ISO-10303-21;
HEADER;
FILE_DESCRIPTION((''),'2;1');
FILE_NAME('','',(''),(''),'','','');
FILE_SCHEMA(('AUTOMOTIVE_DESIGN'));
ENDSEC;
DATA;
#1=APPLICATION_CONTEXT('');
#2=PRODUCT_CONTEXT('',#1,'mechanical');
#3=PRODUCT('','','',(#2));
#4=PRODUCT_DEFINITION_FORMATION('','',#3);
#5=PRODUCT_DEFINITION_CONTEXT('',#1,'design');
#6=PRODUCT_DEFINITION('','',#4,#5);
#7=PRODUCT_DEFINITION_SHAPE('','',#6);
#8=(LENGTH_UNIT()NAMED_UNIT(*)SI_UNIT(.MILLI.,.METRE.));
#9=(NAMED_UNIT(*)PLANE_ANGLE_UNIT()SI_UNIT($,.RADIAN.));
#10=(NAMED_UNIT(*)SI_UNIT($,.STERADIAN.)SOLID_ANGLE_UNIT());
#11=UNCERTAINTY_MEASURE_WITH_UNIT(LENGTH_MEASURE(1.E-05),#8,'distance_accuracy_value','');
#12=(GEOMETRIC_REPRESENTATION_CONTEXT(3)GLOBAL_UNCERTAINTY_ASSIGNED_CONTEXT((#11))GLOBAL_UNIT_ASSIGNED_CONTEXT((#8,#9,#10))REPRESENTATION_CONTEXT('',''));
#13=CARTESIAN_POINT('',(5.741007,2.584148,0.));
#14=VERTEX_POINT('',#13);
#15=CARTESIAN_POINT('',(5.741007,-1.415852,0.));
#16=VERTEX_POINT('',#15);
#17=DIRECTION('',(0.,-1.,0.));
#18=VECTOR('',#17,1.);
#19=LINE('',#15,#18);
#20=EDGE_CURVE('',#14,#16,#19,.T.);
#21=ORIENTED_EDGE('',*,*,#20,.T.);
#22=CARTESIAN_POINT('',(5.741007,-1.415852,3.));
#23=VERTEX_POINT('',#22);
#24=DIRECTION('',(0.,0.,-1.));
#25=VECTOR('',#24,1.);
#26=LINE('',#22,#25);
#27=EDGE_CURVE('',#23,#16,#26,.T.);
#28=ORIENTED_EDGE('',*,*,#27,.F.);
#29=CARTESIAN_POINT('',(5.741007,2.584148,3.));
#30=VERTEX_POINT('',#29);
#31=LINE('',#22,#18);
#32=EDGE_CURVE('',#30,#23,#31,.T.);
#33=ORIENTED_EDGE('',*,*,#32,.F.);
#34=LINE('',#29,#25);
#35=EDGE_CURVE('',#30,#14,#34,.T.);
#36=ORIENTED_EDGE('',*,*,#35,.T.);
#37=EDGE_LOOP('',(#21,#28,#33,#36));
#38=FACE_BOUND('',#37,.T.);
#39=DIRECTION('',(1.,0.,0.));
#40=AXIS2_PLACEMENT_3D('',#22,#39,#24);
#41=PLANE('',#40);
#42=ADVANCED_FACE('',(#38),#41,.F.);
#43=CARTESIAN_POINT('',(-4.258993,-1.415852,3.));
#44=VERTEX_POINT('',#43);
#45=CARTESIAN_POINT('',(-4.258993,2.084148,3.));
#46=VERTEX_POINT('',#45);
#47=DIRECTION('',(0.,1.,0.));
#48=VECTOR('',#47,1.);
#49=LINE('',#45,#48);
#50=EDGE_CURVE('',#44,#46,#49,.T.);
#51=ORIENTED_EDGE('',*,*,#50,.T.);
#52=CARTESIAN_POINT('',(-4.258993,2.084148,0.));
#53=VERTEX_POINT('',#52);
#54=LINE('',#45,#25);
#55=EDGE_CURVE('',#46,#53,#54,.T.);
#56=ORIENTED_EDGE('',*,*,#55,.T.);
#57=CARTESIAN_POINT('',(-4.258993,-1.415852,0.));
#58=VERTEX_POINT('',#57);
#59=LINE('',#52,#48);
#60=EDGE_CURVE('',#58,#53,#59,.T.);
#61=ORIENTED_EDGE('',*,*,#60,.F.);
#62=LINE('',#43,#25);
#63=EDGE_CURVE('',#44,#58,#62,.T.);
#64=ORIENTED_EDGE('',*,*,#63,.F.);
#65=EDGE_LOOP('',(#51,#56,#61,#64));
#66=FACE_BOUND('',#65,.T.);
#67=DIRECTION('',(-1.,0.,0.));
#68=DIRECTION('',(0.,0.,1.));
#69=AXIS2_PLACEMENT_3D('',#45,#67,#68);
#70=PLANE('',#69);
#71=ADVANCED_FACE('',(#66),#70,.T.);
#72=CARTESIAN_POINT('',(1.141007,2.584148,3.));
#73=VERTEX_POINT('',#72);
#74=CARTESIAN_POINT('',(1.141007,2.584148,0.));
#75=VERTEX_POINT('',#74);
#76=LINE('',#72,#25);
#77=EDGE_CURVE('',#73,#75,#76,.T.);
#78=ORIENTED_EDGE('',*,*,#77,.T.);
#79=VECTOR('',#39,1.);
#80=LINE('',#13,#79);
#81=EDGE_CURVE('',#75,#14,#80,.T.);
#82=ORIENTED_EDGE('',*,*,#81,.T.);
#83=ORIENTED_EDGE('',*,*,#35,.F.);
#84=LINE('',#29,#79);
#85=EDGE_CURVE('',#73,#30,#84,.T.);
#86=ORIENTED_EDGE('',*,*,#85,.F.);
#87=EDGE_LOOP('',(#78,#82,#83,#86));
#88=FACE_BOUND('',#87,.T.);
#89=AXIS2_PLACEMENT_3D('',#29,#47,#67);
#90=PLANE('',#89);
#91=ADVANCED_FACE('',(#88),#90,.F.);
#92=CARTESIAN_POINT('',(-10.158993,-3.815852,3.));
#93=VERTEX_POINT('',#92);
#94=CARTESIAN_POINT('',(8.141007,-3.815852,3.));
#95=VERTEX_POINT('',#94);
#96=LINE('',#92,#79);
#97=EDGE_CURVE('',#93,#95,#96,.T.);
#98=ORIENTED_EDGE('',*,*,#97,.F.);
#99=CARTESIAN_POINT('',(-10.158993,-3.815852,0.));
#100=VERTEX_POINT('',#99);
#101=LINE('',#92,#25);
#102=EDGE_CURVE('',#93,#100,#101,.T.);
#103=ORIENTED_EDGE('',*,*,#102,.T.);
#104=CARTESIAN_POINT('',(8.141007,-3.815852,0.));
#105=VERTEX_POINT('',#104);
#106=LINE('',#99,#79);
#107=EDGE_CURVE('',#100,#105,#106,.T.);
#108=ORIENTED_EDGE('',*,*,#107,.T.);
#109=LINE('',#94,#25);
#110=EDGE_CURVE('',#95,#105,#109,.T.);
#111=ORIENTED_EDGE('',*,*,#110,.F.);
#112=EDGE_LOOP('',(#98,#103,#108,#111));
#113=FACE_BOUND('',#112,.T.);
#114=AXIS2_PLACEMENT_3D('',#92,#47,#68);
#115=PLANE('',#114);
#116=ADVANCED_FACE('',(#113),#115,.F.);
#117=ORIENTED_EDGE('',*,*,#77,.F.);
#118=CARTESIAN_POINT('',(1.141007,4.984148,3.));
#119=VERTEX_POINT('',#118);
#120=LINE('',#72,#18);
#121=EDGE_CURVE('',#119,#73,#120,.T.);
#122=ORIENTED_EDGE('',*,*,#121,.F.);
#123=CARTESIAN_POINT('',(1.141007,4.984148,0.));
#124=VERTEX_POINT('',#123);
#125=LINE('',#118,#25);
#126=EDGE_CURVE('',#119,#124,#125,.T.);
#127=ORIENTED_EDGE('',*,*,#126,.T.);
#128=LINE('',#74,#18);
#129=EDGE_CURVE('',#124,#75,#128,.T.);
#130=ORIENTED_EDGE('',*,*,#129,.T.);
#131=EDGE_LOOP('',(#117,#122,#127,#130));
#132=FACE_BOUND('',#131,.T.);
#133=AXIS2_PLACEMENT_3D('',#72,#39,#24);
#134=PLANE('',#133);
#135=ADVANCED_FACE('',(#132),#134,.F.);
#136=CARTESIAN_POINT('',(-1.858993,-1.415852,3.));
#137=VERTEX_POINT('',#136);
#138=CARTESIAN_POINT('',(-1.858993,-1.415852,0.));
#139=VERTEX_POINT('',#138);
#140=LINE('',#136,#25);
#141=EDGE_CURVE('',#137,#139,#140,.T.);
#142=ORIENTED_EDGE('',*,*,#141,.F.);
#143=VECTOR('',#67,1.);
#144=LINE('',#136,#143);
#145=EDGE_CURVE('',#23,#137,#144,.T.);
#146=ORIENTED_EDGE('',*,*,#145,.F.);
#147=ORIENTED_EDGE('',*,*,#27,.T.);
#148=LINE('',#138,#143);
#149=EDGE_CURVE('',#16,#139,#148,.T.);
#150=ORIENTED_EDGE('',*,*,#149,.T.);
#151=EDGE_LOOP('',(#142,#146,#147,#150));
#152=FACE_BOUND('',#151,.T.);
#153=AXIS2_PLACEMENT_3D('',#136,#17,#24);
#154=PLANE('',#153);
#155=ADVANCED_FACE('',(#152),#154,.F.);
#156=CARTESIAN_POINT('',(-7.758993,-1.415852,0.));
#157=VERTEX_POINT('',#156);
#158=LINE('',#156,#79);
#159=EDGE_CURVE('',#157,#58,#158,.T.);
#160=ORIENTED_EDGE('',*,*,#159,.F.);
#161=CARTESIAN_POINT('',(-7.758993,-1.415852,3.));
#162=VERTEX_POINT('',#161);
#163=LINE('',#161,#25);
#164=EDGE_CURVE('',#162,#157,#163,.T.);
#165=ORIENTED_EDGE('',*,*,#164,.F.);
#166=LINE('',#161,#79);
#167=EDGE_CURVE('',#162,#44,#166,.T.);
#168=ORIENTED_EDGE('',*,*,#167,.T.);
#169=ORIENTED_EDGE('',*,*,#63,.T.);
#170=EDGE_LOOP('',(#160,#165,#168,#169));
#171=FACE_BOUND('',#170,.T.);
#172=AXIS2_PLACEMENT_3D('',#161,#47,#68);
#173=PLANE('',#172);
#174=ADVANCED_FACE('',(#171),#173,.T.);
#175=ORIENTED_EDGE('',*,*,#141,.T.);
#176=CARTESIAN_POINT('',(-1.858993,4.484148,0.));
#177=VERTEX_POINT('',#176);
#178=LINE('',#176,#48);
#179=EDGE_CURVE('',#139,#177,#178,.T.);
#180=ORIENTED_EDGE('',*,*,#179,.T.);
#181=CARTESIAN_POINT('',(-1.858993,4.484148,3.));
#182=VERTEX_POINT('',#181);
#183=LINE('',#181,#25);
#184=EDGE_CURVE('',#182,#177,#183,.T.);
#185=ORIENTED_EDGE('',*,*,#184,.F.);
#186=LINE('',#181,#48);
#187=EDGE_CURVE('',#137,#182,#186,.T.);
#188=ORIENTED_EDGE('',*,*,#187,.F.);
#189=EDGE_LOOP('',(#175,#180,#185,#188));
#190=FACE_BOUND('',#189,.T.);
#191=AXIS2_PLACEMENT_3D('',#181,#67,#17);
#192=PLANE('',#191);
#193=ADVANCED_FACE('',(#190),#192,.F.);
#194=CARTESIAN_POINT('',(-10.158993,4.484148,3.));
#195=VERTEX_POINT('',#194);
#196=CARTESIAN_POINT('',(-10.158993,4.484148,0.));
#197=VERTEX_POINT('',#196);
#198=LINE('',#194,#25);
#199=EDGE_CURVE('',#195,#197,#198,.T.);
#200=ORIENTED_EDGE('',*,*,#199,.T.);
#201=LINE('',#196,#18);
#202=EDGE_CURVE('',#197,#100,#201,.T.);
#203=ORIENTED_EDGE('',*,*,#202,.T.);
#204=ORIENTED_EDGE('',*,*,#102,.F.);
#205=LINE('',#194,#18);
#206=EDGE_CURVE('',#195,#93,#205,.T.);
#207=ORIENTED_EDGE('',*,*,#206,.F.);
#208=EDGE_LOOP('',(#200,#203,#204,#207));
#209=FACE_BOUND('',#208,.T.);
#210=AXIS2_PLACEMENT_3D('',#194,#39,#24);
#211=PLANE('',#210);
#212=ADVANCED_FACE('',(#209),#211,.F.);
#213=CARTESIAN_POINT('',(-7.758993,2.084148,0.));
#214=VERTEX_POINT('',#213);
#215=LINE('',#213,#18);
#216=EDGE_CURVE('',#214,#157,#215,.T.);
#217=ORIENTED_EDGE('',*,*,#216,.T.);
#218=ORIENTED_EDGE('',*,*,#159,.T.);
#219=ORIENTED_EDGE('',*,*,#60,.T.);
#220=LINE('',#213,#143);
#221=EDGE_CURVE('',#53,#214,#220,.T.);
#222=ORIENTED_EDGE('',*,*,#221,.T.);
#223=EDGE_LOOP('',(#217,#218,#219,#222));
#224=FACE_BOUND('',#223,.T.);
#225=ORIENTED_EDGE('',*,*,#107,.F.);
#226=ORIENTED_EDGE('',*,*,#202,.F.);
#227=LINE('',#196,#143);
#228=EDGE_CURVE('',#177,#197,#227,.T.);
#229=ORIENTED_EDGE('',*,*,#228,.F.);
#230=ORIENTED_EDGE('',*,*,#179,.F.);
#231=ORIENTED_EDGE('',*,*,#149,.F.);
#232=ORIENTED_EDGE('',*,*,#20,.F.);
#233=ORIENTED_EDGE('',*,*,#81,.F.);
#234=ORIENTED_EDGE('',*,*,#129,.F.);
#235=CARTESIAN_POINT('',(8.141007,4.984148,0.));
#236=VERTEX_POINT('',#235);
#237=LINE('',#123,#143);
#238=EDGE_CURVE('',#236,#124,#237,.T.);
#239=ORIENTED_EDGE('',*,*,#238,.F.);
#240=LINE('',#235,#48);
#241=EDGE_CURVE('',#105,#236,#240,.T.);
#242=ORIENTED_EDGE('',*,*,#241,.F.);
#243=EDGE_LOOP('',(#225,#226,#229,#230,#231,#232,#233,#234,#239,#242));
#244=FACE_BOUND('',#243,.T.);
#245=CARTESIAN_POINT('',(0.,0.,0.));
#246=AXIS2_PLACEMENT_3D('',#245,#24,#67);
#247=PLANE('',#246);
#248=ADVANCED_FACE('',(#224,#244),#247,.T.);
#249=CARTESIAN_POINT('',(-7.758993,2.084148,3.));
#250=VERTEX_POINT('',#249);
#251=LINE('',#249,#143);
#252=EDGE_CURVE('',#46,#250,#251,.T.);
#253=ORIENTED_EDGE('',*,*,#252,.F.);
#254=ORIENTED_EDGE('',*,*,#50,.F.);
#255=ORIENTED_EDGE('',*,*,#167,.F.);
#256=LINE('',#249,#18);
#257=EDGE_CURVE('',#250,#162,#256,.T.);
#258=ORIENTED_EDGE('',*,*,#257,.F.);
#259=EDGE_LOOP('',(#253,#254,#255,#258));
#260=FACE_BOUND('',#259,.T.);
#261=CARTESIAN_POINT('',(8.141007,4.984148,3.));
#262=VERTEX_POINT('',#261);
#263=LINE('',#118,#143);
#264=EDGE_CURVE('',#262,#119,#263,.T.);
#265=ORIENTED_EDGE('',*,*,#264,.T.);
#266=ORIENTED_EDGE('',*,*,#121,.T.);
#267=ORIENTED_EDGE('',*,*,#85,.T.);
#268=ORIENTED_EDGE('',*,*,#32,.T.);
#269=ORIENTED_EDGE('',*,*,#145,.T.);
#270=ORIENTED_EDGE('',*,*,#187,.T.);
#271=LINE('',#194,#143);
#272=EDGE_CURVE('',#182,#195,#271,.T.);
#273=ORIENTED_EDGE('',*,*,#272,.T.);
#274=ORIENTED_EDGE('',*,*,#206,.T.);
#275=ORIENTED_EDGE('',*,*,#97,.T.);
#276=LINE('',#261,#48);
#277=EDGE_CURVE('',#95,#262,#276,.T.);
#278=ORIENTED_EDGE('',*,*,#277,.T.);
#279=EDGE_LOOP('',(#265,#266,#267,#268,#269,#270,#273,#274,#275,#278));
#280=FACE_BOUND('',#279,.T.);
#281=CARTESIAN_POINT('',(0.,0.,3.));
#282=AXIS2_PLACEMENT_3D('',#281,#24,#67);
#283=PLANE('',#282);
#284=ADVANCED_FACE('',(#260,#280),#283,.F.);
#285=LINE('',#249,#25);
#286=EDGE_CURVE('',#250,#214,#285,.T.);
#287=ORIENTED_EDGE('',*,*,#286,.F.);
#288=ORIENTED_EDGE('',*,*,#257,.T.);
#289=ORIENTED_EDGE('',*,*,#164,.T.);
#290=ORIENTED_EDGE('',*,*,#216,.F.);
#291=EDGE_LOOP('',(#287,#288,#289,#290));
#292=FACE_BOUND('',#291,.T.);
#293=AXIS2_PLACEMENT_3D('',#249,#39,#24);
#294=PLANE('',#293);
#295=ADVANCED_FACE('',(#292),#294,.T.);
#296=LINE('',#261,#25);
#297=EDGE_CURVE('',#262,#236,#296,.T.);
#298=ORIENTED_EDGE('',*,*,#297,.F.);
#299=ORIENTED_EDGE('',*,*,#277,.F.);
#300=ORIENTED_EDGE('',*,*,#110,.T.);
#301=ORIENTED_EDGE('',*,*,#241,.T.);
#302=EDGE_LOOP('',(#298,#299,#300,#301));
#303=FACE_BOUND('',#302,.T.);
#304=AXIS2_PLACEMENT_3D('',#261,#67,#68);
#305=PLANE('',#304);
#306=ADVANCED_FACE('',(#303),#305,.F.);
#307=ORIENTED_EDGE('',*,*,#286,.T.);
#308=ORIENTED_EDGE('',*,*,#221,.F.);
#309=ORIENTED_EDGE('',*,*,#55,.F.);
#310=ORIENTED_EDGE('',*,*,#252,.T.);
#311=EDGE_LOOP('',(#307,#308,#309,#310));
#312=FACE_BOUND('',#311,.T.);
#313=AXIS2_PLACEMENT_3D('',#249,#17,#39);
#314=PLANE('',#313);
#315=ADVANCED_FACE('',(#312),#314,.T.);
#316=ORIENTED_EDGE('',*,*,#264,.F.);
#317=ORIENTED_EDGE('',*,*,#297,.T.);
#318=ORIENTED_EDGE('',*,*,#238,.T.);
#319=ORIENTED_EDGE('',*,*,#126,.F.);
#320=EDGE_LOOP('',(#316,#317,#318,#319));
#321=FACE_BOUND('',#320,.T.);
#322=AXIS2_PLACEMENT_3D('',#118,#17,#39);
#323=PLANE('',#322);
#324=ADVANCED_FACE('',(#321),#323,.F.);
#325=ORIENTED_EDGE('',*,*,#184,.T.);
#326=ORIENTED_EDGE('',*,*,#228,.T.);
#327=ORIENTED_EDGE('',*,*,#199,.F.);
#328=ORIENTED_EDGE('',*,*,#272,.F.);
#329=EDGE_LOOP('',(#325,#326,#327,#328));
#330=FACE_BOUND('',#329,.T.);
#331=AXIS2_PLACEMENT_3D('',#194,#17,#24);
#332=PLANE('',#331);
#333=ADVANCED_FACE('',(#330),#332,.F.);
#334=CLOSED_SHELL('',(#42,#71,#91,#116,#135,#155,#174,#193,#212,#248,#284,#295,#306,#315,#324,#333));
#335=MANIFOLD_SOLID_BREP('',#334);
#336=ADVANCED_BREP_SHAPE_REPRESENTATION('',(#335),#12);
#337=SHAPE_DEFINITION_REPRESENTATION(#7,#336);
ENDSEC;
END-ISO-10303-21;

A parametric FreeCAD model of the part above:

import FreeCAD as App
import Part
import Sketcher
from FreeCAD import Vector
Q = App.Units.Quantity


def add_polygon(sketch, points):
    """Adds a closed chain of lines whose ends are joined by coincident constraints."""
    first, n = sketch.GeometryCount, len(points)
    for a, b in zip(points, points[1:] + points[:1]):
        sketch.addGeometry(Part.LineSegment(App.Vector(*a, 0), App.Vector(*b, 0)), False)
    for i in range(n):
        sketch.addConstraint(Sketcher.Constraint("Coincident", first + i, 2, first + (i + 1) % n, 1))

doc = App.newDocument("Part")
body = doc.addObject("PartDesign::Body", "Body")

# Sketch on XY plane
sketch1 = body.newObject("Sketcher::SketchObject", "Sketch")
sketch1.AttachmentSupport = (doc.getObject("XY_Plane"), [""])
sketch1.MapMode = "FlatFace"
add_polygon(sketch1, [(-1.9, -1.4), (-1.9, 4.5), (-10.2, 4.5), (-10.2, -3.8), (8.1, -3.8), (8.1, 5), (1.1, 5), (1.1, 2.6), (5.7, 2.6), (5.7, -1.4)])  # lines 0-9
add_polygon(sketch1, [(-7.8, -1.4), (-7.8, 2.1), (-4.3, 2.1), (-4.3, -1.4)])  # lines 10-13
sketch1.addConstraint(Sketcher.Constraint("Vertical", 0))
sketch1.addConstraint(Sketcher.Constraint("Horizontal", 1))
sketch1.addConstraint(Sketcher.Constraint("Vertical", 2))
sketch1.addConstraint(Sketcher.Constraint("Horizontal", 3))
sketch1.addConstraint(Sketcher.Constraint("Vertical", 4))
sketch1.addConstraint(Sketcher.Constraint("Horizontal", 5))
sketch1.addConstraint(Sketcher.Constraint("Vertical", 6))
sketch1.addConstraint(Sketcher.Constraint("Horizontal", 7))
sketch1.addConstraint(Sketcher.Constraint("Vertical", 8))
sketch1.addConstraint(Sketcher.Constraint("Horizontal", 9))
sketch1.addConstraint(Sketcher.Constraint("Vertical", 10))
sketch1.addConstraint(Sketcher.Constraint("Horizontal", 11))
sketch1.addConstraint(Sketcher.Constraint("Vertical", 12))
sketch1.addConstraint(Sketcher.Constraint("Horizontal", 13))
sketch1.addConstraint(Sketcher.Constraint("Horizontal", 9, 2, 12, 2))
sketch1.addConstraint(Sketcher.Constraint("Equal", 1, 2))
sketch1.addConstraint(Sketcher.Constraint("Equal", 13, 10))
sketch1.addConstraint(Sketcher.Constraint("DistanceX", 5, 2, 5, 1, Q("7 mm")))
sketch1.addConstraint(Sketcher.Constraint("DistanceY", 8, 2, 8, 1, Q("4 mm")))
sketch1.addConstraint(Sketcher.Constraint("DistanceX", 1, 2, 1, 1, Q("8.3 mm")))
sketch1.addConstraint(Sketcher.Constraint("DistanceX", 3, 1, 3, 2, Q("18.3 mm")))
sketch1.addConstraint(Sketcher.Constraint("DistanceX", 7, 1, 7, 2, Q("4.6 mm")))
sketch1.addConstraint(Sketcher.Constraint("DistanceX", 11, 1, 11, 2, Q("3.5 mm")))
sketch1.addConstraint(Sketcher.Constraint("DistanceY", 0, 1, 0, 2, Q("5.9 mm")))
sketch1.addConstraint(Sketcher.Constraint("DistanceY", 4, 1, 4, 2, Q("8.8 mm")))
sketch1.addConstraint(Sketcher.Constraint("DistanceX", 1, 2, 10, 2, Q("2.4 mm")))
sketch1.addConstraint(Sketcher.Constraint("DistanceY", -1, 1, 0, 2, Q("4.484148 mm")))
sketch1.addConstraint(Sketcher.Constraint("DistanceX", 0, 2, -1, 1, Q("1.858993 mm")))
pad1 = body.newObject("PartDesign::Pad", "Pad")
pad1.Profile = sketch1
pad1.Length = 3

doc.recompute()
